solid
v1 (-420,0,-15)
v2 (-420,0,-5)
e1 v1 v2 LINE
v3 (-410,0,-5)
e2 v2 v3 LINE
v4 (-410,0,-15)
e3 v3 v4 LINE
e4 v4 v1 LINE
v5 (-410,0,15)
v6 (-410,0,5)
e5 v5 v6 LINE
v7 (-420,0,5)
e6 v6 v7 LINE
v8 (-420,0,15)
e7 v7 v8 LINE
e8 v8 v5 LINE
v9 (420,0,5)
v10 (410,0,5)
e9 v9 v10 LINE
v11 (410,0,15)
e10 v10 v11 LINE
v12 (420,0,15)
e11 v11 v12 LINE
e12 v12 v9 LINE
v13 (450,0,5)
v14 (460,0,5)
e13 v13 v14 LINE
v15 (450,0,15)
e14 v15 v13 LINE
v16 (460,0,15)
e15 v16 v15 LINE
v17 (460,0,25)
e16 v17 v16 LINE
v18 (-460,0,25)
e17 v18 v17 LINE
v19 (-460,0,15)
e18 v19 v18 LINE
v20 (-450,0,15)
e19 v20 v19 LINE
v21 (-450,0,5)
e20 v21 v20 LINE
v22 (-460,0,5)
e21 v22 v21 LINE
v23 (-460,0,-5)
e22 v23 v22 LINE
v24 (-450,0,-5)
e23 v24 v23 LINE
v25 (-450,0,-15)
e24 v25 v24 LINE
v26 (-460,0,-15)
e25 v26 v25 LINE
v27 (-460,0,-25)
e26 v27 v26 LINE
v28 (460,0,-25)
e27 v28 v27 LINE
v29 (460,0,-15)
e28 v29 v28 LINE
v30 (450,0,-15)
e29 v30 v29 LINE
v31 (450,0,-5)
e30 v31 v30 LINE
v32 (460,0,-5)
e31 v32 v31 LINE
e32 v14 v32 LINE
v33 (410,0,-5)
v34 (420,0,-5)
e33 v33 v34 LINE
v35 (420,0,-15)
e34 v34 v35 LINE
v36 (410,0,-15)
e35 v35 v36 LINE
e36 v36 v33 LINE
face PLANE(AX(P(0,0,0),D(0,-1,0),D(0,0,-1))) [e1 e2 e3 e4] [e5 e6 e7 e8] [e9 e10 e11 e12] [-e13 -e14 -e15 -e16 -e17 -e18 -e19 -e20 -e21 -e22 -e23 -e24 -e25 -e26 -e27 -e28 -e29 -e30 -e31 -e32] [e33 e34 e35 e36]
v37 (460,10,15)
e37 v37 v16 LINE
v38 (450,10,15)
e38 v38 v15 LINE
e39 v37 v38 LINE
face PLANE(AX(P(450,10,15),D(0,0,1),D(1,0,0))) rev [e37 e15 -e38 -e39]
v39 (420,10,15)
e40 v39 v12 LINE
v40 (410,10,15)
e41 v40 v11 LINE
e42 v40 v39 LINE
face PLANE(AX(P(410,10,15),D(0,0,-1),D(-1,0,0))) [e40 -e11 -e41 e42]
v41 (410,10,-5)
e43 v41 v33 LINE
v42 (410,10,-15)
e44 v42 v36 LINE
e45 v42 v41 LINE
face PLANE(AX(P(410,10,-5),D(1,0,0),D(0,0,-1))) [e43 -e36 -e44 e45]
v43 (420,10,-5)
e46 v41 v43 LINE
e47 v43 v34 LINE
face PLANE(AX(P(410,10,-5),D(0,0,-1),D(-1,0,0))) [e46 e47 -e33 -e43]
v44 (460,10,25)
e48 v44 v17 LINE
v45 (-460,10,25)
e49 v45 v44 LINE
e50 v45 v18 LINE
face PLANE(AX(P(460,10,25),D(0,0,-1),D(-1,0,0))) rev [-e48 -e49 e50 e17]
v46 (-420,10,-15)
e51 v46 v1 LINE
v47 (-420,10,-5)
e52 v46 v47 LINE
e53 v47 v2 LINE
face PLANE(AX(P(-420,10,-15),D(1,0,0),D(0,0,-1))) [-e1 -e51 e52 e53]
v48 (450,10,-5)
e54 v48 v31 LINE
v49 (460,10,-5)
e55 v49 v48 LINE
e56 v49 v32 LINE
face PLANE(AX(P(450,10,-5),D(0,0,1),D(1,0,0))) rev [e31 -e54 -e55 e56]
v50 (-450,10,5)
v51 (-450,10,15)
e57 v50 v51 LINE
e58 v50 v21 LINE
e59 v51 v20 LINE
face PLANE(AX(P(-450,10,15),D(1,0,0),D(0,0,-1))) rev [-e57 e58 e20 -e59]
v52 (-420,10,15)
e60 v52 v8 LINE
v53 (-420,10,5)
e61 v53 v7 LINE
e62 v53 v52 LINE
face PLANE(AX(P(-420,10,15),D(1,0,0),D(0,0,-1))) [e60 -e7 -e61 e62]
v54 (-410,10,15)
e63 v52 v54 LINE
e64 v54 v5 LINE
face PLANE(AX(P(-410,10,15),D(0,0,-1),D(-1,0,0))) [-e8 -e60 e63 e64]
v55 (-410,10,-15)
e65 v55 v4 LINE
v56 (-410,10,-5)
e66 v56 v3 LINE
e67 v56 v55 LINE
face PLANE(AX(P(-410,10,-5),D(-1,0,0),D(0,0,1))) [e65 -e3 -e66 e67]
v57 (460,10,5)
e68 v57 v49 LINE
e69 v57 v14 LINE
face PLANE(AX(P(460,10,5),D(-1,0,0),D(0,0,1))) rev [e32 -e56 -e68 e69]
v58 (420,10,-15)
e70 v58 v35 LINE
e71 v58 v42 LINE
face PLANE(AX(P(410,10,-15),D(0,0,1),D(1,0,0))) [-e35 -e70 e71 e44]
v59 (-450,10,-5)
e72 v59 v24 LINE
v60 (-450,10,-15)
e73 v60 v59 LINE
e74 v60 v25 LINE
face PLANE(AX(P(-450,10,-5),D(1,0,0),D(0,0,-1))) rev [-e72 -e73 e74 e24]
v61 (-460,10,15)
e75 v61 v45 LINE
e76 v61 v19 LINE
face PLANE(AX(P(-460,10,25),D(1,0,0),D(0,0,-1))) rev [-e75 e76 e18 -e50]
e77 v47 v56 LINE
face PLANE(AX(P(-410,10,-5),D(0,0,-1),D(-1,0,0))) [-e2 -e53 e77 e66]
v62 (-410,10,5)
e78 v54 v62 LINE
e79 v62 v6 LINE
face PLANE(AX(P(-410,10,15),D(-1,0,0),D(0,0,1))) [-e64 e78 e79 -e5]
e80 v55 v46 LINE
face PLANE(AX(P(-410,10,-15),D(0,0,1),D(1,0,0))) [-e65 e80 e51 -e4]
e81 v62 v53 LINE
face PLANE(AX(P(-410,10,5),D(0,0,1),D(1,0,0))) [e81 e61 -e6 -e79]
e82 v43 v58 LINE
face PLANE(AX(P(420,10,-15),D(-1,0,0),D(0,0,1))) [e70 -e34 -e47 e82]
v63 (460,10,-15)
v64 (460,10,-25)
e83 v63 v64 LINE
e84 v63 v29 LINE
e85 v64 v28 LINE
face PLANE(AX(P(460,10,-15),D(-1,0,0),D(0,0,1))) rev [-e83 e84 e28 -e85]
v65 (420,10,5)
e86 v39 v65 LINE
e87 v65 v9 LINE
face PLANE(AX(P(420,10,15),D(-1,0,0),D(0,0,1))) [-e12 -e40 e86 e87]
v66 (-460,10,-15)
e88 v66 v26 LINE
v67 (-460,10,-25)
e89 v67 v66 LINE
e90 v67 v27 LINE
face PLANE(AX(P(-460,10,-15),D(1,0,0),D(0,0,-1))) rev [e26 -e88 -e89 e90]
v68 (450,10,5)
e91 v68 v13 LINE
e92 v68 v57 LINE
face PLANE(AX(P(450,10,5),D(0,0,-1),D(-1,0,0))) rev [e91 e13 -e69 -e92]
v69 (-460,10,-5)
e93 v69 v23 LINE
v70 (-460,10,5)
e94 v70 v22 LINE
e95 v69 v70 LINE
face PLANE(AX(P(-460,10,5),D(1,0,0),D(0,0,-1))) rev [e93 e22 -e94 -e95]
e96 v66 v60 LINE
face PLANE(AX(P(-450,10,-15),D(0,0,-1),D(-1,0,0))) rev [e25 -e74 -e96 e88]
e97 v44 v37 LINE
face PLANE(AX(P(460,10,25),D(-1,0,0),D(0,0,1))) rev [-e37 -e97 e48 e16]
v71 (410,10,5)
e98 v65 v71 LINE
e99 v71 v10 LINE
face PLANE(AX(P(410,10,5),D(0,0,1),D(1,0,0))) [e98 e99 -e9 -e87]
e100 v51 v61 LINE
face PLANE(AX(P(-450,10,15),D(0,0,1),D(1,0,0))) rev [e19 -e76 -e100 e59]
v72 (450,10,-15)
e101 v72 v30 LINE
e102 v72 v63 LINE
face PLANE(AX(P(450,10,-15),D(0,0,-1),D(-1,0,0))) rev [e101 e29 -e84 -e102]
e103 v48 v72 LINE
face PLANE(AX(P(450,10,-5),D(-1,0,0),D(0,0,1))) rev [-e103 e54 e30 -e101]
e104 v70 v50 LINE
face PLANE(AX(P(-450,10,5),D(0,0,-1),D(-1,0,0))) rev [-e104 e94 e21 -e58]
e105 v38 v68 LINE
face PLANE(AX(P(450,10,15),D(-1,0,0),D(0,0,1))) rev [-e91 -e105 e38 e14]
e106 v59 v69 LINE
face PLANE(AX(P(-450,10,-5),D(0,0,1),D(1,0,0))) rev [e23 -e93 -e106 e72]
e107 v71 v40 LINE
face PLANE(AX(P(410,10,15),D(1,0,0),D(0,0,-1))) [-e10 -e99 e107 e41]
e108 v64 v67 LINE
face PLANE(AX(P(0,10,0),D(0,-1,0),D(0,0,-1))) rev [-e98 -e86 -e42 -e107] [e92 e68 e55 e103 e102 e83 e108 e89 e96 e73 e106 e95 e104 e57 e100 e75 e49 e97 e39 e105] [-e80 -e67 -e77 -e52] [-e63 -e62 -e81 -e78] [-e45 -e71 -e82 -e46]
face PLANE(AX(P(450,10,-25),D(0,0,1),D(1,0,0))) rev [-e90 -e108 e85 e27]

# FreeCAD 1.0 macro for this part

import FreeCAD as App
import Part
import Sketcher


def add_polygon(sketch, points):
    """Adds a closed chain of lines whose ends are joined by coincident constraints."""
    first, n = sketch.GeometryCount, len(points)
    for a, b in zip(points, points[1:] + points[:1]):
        sketch.addGeometry(Part.LineSegment(App.Vector(*a, 0), App.Vector(*b, 0)), False)
    for i in range(n):
        sketch.addConstraint(Sketcher.Constraint("Coincident", first + i, 2, first + (i + 1) % n, 1))

doc = App.newDocument("Part")
body = doc.addObject("PartDesign::Body", "Body")

# Sketch on XZ plane
sketch1 = doc.addObject("Sketcher::SketchObject", "Sketch")
body.addObject(sketch1)
sketch1.AttachmentSupport = (doc.XZ_Plane, [""])
sketch1.MapMode = "FlatFace"
add_polygon(sketch1, [(-450, -15), (-450, -5), (-460, -5), (-460, 5), (-450, 5), (-450, 15), (-460, 15), (-460, 25), (460, 25), (460, 15), (450, 15), (450, 5), (460, 5), (460, -5), (450, -5), (450, -15), (460, -15), (460, -25), (-460, -25), (-460, -15)])  # lines 0-19
add_polygon(sketch1, [(410, 15), (410, 5), (420, 5), (420, 15)])  # lines 20-23
add_polygon(sketch1, [(-420, 15), (-420, 5), (-410, 5), (-410, 15)])  # lines 24-27
add_polygon(sketch1, [(410, -5), (410, -15), (420, -15), (420, -5)])  # lines 28-31
add_polygon(sketch1, [(-420, -5), (-420, -15), (-410, -15), (-410, -5)])  # lines 32-35
sketch1.addConstraint([
    Sketcher.Constraint("Vertical", 0),
    Sketcher.Constraint("Horizontal", 1),
    Sketcher.Constraint("Vertical", 2),
    Sketcher.Constraint("Horizontal", 3),
    Sketcher.Constraint("Vertical", 4),
    Sketcher.Constraint("Horizontal", 5),
    Sketcher.Constraint("Vertical", 6),
    Sketcher.Constraint("Horizontal", 7),
    Sketcher.Constraint("Vertical", 8),
    Sketcher.Constraint("Horizontal", 9),
    Sketcher.Constraint("Vertical", 10),
    Sketcher.Constraint("Horizontal", 11),
    Sketcher.Constraint("Vertical", 12),
    Sketcher.Constraint("Horizontal", 13),
    Sketcher.Constraint("Vertical", 14),
    Sketcher.Constraint("Horizontal", 15),
    Sketcher.Constraint("Vertical", 16),
    Sketcher.Constraint("Horizontal", 17),
    Sketcher.Constraint("Vertical", 18),
    Sketcher.Constraint("Horizontal", 19),
    Sketcher.Constraint("Vertical", 20),
    Sketcher.Constraint("Horizontal", 21),
    Sketcher.Constraint("Vertical", 22),
    Sketcher.Constraint("Horizontal", 23),
    Sketcher.Constraint("Vertical", 24),
    Sketcher.Constraint("Horizontal", 25),
    Sketcher.Constraint("Vertical", 26),
    Sketcher.Constraint("Horizontal", 27),
    Sketcher.Constraint("Vertical", 28),
    Sketcher.Constraint("Horizontal", 29),
    Sketcher.Constraint("Vertical", 30),
    Sketcher.Constraint("Horizontal", 31),
    Sketcher.Constraint("Vertical", 32),
    Sketcher.Constraint("Horizontal", 33),
    Sketcher.Constraint("Vertical", 34),
    Sketcher.Constraint("Horizontal", 35),
    Sketcher.Constraint("Symmetric", 0, 2, 10, 2, -1, 1),
    Sketcher.Constraint("Symmetric", 2, 2, 12, 2, -1, 1),
    Sketcher.Constraint("Symmetric", 4, 2, 14, 2, -1, 1),
    Sketcher.Constraint("Symmetric", 6, 2, 16, 2, -1, 1),
    Sketcher.Constraint("Symmetric", 8, 2, 18, 2, -1, 1),
    Sketcher.Constraint("Symmetric", 26, 2, 28, 2, -1, 1),
    Sketcher.Constraint("Symmetric", 24, 2, 30, 2, -1, 1),
    Sketcher.Constraint("Symmetric", 22, 2, 32, 2, -1, 1),
    Sketcher.Constraint("Symmetric", 20, 2, 34, 2, -1, 1),
    Sketcher.Constraint("Symmetric", 5, 2, 8, 2, -2),
    Sketcher.Constraint("Symmetric", 3, 2, 10, 2, -2),
    Sketcher.Constraint("Symmetric", 21, 2, 24, 2, -2),
    Sketcher.Constraint("Symmetric", 23, 2, 26, 2, -2),
    Sketcher.Constraint("Horizontal", 11, 2, 20, 2),
    Sketcher.Constraint("Horizontal", 9, 2, 22, 2),
    Sketcher.Constraint("Vertical", 2, 2, 5, 2),
    Sketcher.Constraint("Equal", 19, 21),
    Sketcher.Constraint("Equal", 35, 0),
    Sketcher.Constraint("Equal", 0, 2),
    Sketcher.Constraint("Equal", 4, 6),
    Sketcher.Constraint("DistanceX", 1, 2, 1, 1, 10.0),
    Sketcher.Constraint("DistanceX", 7, 1, 7, 2, 920.0),
    Sketcher.Constraint("DistanceX", -1, 1, 20, 2, 410.0),
])
pad1 = doc.addObject("PartDesign::Pad", "Pad")
body.addObject(pad1)
pad1.Profile = sketch1
pad1.Length = 10
pad1.Reversed = True

doc.recompute()
